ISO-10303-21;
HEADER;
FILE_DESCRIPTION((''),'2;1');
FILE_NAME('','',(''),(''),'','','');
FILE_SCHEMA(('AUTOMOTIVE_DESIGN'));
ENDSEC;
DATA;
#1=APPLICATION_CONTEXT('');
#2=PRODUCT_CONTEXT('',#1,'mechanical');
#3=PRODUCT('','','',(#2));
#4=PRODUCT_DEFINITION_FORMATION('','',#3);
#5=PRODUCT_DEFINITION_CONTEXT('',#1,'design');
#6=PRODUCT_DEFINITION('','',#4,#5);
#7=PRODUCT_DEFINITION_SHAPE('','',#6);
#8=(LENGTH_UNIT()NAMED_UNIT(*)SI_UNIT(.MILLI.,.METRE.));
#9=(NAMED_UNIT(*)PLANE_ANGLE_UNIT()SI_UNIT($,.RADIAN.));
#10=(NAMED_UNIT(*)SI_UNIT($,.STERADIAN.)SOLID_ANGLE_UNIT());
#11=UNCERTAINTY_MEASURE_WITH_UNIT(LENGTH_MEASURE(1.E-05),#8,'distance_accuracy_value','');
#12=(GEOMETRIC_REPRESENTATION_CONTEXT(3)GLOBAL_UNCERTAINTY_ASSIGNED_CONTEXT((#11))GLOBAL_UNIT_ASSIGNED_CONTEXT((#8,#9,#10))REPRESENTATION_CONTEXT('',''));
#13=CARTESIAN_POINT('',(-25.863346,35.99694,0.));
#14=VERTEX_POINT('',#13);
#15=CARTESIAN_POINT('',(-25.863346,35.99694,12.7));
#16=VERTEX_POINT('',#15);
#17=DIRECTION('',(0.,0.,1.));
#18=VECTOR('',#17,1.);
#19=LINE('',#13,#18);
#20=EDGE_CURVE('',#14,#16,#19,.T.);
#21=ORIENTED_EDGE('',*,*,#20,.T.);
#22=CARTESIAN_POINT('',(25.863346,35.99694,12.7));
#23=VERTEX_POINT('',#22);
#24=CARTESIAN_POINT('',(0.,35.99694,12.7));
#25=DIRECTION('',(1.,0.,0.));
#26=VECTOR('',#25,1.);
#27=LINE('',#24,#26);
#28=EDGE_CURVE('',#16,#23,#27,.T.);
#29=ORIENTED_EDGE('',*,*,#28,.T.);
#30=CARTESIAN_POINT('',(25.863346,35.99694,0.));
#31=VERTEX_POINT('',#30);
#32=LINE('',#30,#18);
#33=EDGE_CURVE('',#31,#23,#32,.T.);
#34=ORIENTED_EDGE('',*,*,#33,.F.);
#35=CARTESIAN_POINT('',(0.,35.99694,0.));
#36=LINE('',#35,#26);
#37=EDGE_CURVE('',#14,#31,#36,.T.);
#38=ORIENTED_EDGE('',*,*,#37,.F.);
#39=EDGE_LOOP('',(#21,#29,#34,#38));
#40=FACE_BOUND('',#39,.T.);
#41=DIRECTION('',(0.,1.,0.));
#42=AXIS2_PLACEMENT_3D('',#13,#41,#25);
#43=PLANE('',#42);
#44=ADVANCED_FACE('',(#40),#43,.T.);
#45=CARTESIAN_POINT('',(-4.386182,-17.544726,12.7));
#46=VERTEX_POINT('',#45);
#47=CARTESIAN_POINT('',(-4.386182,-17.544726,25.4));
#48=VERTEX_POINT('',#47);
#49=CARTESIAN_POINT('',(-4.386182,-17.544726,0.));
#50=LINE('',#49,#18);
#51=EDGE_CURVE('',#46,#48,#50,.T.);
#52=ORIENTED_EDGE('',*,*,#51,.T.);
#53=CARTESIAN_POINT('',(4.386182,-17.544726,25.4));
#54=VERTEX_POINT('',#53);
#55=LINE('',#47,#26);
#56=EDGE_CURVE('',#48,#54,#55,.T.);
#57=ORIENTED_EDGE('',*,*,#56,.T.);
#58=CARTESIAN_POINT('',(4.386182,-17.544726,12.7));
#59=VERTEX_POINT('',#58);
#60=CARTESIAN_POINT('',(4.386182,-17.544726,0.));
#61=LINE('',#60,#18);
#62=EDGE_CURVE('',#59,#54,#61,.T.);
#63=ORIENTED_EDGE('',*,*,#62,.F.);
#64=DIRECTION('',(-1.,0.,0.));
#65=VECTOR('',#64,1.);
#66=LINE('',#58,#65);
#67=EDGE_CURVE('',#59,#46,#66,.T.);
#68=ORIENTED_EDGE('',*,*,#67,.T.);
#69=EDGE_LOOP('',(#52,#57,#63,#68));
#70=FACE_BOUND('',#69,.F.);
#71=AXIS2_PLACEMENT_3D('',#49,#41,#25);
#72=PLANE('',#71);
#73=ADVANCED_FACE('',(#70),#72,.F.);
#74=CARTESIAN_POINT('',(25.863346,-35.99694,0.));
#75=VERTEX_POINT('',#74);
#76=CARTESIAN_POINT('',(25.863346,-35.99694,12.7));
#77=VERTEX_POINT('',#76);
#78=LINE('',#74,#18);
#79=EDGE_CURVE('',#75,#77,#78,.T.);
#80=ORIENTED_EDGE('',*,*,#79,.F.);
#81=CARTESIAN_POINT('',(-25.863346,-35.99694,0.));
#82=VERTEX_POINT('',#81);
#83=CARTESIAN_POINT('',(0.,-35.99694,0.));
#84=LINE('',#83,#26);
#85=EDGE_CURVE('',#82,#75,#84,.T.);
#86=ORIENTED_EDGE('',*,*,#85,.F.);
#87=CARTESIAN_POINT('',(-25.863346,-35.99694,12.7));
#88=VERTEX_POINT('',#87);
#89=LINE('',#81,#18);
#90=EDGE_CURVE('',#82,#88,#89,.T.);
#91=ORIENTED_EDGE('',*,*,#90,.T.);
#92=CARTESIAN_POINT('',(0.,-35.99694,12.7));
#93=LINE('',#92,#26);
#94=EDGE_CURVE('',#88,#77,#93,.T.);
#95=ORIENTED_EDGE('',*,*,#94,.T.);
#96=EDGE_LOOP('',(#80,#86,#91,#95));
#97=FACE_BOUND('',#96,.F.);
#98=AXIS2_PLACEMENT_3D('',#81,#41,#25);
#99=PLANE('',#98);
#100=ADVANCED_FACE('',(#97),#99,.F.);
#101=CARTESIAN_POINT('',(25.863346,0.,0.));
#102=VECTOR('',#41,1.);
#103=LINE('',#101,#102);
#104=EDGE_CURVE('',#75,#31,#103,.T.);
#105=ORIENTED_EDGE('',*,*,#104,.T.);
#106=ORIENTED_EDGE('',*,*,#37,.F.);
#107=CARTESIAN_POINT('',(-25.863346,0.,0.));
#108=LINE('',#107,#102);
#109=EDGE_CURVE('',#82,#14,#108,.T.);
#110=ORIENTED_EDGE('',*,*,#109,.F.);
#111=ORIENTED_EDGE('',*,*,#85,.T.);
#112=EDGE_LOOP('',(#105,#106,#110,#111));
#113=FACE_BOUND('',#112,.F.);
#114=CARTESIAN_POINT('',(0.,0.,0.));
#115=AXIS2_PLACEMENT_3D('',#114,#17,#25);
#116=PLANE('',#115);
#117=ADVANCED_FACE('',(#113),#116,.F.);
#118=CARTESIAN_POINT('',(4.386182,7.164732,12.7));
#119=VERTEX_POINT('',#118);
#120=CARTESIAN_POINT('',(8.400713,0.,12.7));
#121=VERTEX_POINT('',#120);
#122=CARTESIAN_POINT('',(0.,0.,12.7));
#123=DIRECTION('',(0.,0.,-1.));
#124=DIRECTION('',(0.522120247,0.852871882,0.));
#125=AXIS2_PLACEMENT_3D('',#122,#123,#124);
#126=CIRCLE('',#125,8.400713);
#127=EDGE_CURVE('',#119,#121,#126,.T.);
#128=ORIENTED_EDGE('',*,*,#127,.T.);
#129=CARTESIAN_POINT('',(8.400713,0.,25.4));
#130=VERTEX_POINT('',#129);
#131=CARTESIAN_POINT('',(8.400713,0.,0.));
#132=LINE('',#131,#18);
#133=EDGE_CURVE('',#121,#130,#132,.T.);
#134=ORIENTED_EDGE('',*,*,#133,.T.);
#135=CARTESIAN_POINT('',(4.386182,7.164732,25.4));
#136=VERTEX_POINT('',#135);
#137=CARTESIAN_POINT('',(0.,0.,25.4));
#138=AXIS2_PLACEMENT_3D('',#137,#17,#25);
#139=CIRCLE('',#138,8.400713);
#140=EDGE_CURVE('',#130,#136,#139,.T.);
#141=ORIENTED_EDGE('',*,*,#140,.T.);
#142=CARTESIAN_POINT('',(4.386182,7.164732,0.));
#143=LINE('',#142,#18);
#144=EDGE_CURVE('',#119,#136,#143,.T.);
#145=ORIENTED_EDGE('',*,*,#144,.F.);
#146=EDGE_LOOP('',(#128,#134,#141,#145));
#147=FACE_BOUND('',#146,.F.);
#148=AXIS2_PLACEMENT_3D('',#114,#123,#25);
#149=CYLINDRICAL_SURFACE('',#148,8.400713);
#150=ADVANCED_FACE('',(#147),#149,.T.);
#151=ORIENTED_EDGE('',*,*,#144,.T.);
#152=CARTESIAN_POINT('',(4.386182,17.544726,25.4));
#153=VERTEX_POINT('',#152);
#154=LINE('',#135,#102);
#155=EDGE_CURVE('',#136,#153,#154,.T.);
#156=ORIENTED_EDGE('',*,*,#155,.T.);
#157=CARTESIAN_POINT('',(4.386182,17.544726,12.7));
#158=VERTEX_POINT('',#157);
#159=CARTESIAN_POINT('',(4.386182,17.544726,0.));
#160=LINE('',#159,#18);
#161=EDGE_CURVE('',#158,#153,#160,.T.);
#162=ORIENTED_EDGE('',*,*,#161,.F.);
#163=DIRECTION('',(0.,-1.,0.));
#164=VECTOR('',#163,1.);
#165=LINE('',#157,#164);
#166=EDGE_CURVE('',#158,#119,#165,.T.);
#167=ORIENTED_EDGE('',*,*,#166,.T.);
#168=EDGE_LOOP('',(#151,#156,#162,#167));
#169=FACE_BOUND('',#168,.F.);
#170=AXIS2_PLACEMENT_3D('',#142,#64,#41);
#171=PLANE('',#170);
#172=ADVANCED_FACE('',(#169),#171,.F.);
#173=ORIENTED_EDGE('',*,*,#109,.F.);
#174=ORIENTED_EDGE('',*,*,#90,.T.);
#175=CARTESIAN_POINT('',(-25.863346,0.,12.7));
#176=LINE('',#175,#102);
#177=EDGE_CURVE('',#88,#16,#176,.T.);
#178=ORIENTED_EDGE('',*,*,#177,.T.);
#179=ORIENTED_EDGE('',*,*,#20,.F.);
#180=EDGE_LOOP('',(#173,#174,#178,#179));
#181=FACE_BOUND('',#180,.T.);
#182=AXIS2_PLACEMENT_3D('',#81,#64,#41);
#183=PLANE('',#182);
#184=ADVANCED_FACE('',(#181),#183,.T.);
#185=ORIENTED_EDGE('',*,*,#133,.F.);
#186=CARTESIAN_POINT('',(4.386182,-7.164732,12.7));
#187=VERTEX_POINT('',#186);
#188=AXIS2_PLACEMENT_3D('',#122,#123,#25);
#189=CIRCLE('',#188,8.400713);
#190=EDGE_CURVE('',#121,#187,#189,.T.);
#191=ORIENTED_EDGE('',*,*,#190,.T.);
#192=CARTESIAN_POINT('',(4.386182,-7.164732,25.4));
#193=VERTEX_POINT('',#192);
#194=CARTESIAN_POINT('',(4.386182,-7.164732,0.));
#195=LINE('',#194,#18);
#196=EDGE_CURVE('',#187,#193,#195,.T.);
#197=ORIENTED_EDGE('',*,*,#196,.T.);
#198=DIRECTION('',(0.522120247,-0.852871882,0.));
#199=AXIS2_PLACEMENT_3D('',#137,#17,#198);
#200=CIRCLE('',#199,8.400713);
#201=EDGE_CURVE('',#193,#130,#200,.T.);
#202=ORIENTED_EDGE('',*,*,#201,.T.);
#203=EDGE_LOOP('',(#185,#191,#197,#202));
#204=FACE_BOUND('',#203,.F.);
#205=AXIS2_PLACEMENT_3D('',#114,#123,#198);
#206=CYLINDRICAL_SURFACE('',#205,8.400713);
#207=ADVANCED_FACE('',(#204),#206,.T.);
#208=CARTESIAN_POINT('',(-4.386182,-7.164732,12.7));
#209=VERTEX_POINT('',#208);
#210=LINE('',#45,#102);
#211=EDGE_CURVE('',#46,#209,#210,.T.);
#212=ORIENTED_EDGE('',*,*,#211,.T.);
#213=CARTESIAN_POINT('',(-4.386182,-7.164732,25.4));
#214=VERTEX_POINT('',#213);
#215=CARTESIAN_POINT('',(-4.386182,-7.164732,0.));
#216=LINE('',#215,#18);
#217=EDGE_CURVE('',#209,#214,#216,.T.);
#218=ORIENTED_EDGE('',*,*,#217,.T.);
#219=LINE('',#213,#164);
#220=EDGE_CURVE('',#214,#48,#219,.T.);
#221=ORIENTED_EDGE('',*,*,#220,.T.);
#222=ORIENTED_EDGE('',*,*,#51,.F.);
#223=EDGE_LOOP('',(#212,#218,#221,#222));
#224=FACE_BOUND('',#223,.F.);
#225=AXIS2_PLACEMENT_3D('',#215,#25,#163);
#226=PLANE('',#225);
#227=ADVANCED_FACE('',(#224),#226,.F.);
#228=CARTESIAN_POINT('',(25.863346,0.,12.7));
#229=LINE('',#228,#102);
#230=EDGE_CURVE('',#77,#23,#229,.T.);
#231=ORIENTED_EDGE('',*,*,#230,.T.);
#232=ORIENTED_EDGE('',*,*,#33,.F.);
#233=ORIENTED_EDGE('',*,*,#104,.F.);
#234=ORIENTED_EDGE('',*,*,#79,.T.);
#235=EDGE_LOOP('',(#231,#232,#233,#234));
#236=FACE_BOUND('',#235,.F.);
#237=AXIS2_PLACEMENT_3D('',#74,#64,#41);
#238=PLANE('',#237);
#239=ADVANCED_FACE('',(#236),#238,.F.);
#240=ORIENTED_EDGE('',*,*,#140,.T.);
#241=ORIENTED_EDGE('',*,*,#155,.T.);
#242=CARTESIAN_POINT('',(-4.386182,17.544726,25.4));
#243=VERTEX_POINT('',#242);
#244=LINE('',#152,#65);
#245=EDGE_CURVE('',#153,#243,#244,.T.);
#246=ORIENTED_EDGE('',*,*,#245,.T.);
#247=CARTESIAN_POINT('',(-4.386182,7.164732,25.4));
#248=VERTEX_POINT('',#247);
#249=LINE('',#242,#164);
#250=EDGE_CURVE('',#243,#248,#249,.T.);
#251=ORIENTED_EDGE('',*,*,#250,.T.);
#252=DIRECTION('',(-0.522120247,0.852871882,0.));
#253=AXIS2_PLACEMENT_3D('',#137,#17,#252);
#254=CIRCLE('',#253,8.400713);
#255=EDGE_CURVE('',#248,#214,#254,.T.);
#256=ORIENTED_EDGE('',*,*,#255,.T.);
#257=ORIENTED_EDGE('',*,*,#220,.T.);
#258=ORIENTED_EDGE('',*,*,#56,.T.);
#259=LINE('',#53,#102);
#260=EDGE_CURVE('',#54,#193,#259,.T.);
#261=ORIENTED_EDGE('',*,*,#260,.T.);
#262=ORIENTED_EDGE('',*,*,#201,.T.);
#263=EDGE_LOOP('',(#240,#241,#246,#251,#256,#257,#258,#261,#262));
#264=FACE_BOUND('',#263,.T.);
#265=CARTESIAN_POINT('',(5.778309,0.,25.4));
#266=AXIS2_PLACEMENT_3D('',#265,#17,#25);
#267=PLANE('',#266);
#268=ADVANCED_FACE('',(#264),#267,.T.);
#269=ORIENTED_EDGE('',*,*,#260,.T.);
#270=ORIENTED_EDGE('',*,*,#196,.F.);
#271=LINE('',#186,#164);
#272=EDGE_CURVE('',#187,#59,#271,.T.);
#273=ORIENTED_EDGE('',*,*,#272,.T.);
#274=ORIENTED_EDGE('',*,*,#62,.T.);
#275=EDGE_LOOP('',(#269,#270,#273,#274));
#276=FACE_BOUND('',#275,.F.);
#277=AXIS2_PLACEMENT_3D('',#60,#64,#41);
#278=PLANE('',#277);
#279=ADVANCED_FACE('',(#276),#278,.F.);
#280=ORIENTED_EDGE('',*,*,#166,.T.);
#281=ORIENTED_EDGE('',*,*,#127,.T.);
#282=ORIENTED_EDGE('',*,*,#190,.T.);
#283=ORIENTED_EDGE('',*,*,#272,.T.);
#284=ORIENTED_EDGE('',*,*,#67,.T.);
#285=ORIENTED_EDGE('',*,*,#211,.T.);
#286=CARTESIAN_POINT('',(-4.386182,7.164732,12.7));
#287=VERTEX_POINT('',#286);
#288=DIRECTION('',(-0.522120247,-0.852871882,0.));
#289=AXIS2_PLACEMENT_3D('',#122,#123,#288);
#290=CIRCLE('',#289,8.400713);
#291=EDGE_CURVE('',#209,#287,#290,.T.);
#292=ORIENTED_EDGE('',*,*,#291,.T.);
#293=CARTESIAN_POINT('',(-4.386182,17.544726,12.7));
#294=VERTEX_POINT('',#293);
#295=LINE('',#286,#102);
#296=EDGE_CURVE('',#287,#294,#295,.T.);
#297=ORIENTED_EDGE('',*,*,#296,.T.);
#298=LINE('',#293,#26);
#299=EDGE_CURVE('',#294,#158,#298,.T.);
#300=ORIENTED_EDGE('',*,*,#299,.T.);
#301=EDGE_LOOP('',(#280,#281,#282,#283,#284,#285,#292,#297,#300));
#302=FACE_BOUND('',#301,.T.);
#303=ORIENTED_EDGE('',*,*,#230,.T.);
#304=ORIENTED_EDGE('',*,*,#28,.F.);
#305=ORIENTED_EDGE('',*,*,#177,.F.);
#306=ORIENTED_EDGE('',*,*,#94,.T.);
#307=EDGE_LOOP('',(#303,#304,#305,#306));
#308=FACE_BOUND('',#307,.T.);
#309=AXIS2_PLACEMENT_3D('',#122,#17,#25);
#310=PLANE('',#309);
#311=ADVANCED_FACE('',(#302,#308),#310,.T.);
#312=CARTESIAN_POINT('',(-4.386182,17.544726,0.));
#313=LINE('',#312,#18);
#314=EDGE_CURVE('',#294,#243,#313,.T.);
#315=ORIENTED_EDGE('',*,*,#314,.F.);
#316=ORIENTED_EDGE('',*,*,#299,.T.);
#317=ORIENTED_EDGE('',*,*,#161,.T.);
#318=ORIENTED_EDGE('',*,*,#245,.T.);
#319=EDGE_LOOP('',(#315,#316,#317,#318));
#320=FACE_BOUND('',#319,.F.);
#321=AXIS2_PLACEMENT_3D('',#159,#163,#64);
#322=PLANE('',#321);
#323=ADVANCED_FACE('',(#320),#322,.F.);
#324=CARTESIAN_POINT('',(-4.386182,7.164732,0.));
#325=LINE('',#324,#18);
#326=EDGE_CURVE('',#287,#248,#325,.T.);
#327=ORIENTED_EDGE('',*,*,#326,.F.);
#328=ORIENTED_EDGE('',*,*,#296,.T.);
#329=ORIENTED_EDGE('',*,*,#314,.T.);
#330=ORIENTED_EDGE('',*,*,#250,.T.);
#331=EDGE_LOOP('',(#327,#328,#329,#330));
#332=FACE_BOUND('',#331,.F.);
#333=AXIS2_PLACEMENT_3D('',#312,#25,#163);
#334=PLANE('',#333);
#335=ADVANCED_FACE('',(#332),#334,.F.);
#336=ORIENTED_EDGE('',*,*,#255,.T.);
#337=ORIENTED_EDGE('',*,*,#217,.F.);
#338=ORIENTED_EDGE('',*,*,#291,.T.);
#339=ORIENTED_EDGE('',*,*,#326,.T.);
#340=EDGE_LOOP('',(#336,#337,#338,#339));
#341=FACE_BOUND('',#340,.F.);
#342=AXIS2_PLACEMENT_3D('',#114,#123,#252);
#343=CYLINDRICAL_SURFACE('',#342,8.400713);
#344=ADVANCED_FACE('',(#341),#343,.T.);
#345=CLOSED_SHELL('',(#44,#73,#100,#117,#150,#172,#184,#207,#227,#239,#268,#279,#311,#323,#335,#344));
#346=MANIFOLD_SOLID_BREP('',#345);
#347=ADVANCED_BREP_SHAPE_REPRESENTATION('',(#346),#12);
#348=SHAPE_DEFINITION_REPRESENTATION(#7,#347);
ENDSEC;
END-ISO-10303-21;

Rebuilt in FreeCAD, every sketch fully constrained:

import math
import FreeCAD as App
import Part
import Sketcher

V = App.Vector


def add_polygon(sketch, points):
    """Adds a closed chain of lines whose ends are joined by coincident constraints."""
    first, n = sketch.GeometryCount, len(points)
    for a, b in zip(points, points[1:] + points[:1]):
        sketch.addGeometry(Part.LineSegment(App.Vector(*a, 0), App.Vector(*b, 0)), False)
    for i in range(n):
        sketch.addConstraint(Sketcher.Constraint("Coincident", first + i, 2, first + (i + 1) % n, 1))

doc = App.newDocument("Part")
params = doc.addObject("Spreadsheet::Sheet", "Params")
for row, (alias, value) in enumerate([
    ("pad1_length", "1 in"),
    ("pad2_length", "0.5 in"),
], start=1):
    params.set(f"A{row}", alias)
    params.set(f"B{row}", "=" + value)
    params.setAlias(f"B{row}", alias)

body = doc.addObject("PartDesign::Body", "Body")

# Sketch on XY plane
sketch1 = body.newObject("Sketcher::SketchObject", "Sketch")
sketch1.AttachmentSupport = (doc.getObject("XY_Plane"), [""])
sketch1.MapMode = "FlatFace"
sketch1.addGeometry([
    Part.ArcOfCircle(Part.Circle(V(0, 0, 0), V(0, 0, 1), 8), math.radians(-59), math.radians(0)),  # 0
    Part.ArcOfCircle(Part.Circle(V(0, 0, 0), V(0, 0, 1), 8), math.radians(0), math.radians(59)),  # 1
    Part.LineSegment(V(4, 7, 0), V(4, 18, 0)),  # 2
    Part.LineSegment(V(4, 18, 0), V(-4, 18, 0)),  # 3
    Part.LineSegment(V(-4, 18, 0), V(-4, 7, 0)),  # 4
    Part.ArcOfCircle(Part.Circle(V(0, 0, 0), V(0, 0, 1), 8), math.radians(121), math.radians(239)),  # 5
    Part.LineSegment(V(-4, -7, 0), V(-4, -18, 0)),  # 6
    Part.LineSegment(V(-4, -18, 0), V(4, -18, 0)),  # 7
    Part.LineSegment(V(4, -18, 0), V(4, -7, 0)),  # 8
], False)
sketch1.addConstraint([
    Sketcher.Constraint("Tangent", 0, 2, 1, 1),
    Sketcher.Constraint("Coincident", 1, 2, 2, 1),
    Sketcher.Constraint("Coincident", 2, 2, 3, 1),
    Sketcher.Constraint("Coincident", 3, 2, 4, 1),
    Sketcher.Constraint("Coincident", 4, 2, 5, 1),
    Sketcher.Constraint("Coincident", 5, 2, 6, 1),
    Sketcher.Constraint("Coincident", 6, 2, 7, 1),
    Sketcher.Constraint("Coincident", 7, 2, 8, 1),
    Sketcher.Constraint("Coincident", 8, 2, 0, 1),
    Sketcher.Constraint("Vertical", 2),
    Sketcher.Constraint("Horizontal", 3),
    Sketcher.Constraint("Vertical", 4),
    Sketcher.Constraint("Vertical", 6),
    Sketcher.Constraint("Horizontal", 7),
    Sketcher.Constraint("Vertical", 8),
    Sketcher.Constraint("Coincident", 0, 3, -1, 1),
    Sketcher.Constraint("Coincident", 5, 3, -1, 1),
    Sketcher.Constraint("Equal", 0, 1),
    Sketcher.Constraint("Equal", 1, 5),
    Sketcher.Constraint("Symmetric", 2, 2, 6, 2, -1, 1),
    Sketcher.Constraint("PointOnObject", 0, 2, -1),
    Sketcher.Constraint("Horizontal", 1, 2, 4, 2),
    Sketcher.Constraint("Horizontal", 5, 2, 8, 2),
    Sketcher.Constraint("Radius", 0, 8.400713),
    Sketcher.Constraint("DistanceX", 3, 2, 3, 1, 8.772365),
    Sketcher.Constraint("DistanceY", 2, 1, 2, 2, 10.379994),
])
pad1 = body.newObject("PartDesign::Pad", "Pad")
pad1.Profile = sketch1
pad1.setExpression("Length", "Params.pad1_length")

# Sketch on XY plane
sketch2 = body.newObject("Sketcher::SketchObject", "Sketch001")
sketch2.AttachmentSupport = (doc.getObject("XY_Plane"), [""])
sketch2.MapMode = "FlatFace"
add_polygon(sketch2, [(-26, 36), (-26, -36), (26, -36), (26, 36)])  # lines 0-3
sketch2.addGeometry(Part.LineSegment(V(4, 18, 0), V(4, 7, 0)), False)  # 4
sketch2.addGeometry(Part.ArcOfCircle(Part.Circle(V(0, 0, 0), V(0, 0, 1), 8), math.radians(0), math.radians(59)), False)  # 5
sketch2.addGeometry(Part.ArcOfCircle(Part.Circle(V(0, 0, 0), V(0, 0, 1), 8), math.radians(-59), math.radians(0)), False)  # 6
sketch2.addGeometry(Part.LineSegment(V(4, -7, 0), V(4, -18, 0)), False)  # 7
sketch2.addGeometry(Part.LineSegment(V(4, -18, 0), V(-4, -18, 0)), False)  # 8
sketch2.addGeometry(Part.LineSegment(V(-4, -18, 0), V(-4, -7, 0)), False)  # 9
sketch2.addGeometry(Part.ArcOfCircle(Part.Circle(V(0, 0, 0), V(0, 0, 1), 8), math.radians(121), math.radians(239)), False)  # 10
sketch2.addGeometry(Part.LineSegment(V(-4, 7, 0), V(-4, 18, 0)), False)  # 11
sketch2.addGeometry(Part.LineSegment(V(-4, 18, 0), V(4, 18, 0)), False)  # 12
sketch2.addConstraint([
    Sketcher.Constraint("Coincident", 4, 2, 5, 2),
    Sketcher.Constraint("Tangent", 5, 1, 6, 2),
    Sketcher.Constraint("Coincident", 6, 1, 7, 1),
    Sketcher.Constraint("Coincident", 7, 2, 8, 1),
    Sketcher.Constraint("Coincident", 8, 2, 9, 1),
    Sketcher.Constraint("Coincident", 9, 2, 10, 2),
    Sketcher.Constraint("Coincident", 10, 1, 11, 1),
    Sketcher.Constraint("Coincident", 11, 2, 12, 1),
    Sketcher.Constraint("Coincident", 12, 2, 4, 1),
    Sketcher.Constraint("Vertical", 0),
    Sketcher.Constraint("Horizontal", 1),
    Sketcher.Constraint("Vertical", 2),
    Sketcher.Constraint("Horizontal", 3),
    Sketcher.Constraint("Vertical", 4),
    Sketcher.Constraint("Vertical", 7),
    Sketcher.Constraint("Horizontal", 8),
    Sketcher.Constraint("Vertical", 9),
    Sketcher.Constraint("Vertical", 11),
    Sketcher.Constraint("Horizontal", 12),
    Sketcher.Constraint("Coincident", 5, 3, -1, 1),
    Sketcher.Constraint("Coincident", 10, 3, -1, 1),
    Sketcher.Constraint("Equal", 5, 6),
    Sketcher.Constraint("Equal", 6, 10),
    Sketcher.Constraint("Symmetric", 0, 2, 2, 2, -1, 1),
    Sketcher.Constraint("Symmetric", 7, 2, 11, 2, -1, 1),
    Sketcher.Constraint("PointOnObject", 5, 1, -1),
    Sketcher.Constraint("Horizontal", 6, 1, 9, 2),
    Sketcher.Constraint("Horizontal", 4, 2, 10, 1),
    Sketcher.Constraint("Radius", 5, 8.400713),
    Sketcher.Constraint("DistanceX", 1, 1, 1, 2, 51.726691),
    Sketcher.Constraint("DistanceY", 0, 2, 0, 1, 71.99388),
    Sketcher.Constraint("DistanceX", 8, 2, 8, 1, 8.772365),
    Sketcher.Constraint("DistanceY", 4, 2, 4, 1, 10.379994),
])
pad2 = body.newObject("PartDesign::Pad", "Pad001")
pad2.Profile = sketch2
pad2.setExpression("Length", "Params.pad2_length")

doc.recompute()
